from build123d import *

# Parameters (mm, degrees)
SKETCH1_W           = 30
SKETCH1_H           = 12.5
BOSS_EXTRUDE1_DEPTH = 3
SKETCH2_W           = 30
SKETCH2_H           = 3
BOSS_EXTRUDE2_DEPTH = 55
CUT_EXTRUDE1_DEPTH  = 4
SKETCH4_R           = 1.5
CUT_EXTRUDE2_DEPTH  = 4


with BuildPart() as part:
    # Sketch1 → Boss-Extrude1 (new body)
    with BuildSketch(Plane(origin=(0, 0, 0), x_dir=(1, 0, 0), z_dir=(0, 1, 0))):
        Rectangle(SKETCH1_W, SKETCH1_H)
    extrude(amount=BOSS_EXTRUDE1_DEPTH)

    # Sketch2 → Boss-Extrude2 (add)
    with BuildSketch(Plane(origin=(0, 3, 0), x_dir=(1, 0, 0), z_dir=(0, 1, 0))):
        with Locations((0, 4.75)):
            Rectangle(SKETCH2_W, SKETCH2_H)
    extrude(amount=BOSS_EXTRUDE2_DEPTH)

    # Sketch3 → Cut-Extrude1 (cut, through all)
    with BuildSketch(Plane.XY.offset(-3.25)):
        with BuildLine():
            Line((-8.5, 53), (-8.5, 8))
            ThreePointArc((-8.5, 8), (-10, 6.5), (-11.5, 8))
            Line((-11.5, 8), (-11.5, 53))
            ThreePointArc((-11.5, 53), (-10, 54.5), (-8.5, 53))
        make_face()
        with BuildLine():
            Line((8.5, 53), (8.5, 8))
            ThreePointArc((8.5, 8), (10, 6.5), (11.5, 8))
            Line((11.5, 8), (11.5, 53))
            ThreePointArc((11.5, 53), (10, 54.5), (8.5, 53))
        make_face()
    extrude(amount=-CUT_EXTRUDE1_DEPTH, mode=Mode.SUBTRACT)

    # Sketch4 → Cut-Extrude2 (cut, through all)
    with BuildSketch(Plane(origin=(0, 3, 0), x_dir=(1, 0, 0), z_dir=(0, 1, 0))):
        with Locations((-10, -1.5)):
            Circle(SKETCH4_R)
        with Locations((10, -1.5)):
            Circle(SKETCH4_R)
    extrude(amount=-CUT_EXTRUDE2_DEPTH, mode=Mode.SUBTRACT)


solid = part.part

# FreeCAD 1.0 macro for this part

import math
import FreeCAD as App
import Part
import Sketcher

doc = App.newDocument("Part")
body = doc.addObject("PartDesign::Body", "Body")

# Sketch on XZ plane
sketch1 = body.newObject("Sketcher::SketchObject", "Sketch")
sketch1.AttachmentSupport = (doc.getObject("XZ_Plane"), [""])
sketch1.MapMode = "FlatFace"
sketch1.addGeometry(Part.LineSegment(App.Vector(-15, -6, 0), App.Vector(-15, 6, 0)), False)
sketch1.addGeometry(Part.LineSegment(App.Vector(-15, 6, 0), App.Vector(15, 6, 0)), False)
sketch1.addGeometry(Part.LineSegment(App.Vector(15, 6, 0), App.Vector(15, -6, 0)), False)
sketch1.addGeometry(Part.LineSegment(App.Vector(15, -6, 0), App.Vector(-15, -6, 0)), False)
sketch1.addConstraint(Sketcher.Constraint("Coincident", 0, 2, 1, 1))
sketch1.addConstraint(Sketcher.Constraint("Coincident", 1, 2, 2, 1))
sketch1.addConstraint(Sketcher.Constraint("Coincident", 2, 2, 3, 1))
sketch1.addConstraint(Sketcher.Constraint("Coincident", 3, 2, 0, 1))
sketch1.addConstraint(Sketcher.Constraint("Vertical", 0))
sketch1.addConstraint(Sketcher.Constraint("Horizontal", 1))
sketch1.addConstraint(Sketcher.Constraint("Vertical", 2))
sketch1.addConstraint(Sketcher.Constraint("Horizontal", 3))
sketch1.addConstraint(Sketcher.Constraint("Symmetric", 0, 2, 2, 2, -1, 1))
sketch1.addConstraint(Sketcher.Constraint("DistanceX", 1, 1, 1, 2, 30.0))
sketch1.addConstraint(Sketcher.Constraint("DistanceY", 0, 1, 0, 2, 12.5))
pad1 = body.newObject("PartDesign::Pad", "Pad")
pad1.Profile = sketch1
pad1.Length = 3
pad1.Reversed = True

# Sketch on XZ plane
sketch2 = body.newObject("Sketcher::SketchObject", "Sketch001")
sketch2.AttachmentSupport = (doc.getObject("XZ_Plane"), [""])
sketch2.MapMode = "FlatFace"
sketch2.AttachmentOffset = App.Placement(App.Vector(0, 0, -3), App.Rotation())
sketch2.addGeometry(Part.LineSegment(App.Vector(-15, -6.2, 0), App.Vector(-15, -3.2, 0)), False)
sketch2.addGeometry(Part.LineSegment(App.Vector(-15, -3.2, 0), App.Vector(15, -3.2, 0)), False)
sketch2.addGeometry(Part.LineSegment(App.Vector(15, -3.2, 0), App.Vector(15, -6.2, 0)), False)
sketch2.addGeometry(Part.LineSegment(App.Vector(15, -6.2, 0), App.Vector(-15, -6.2, 0)), False)
sketch2.addConstraint(Sketcher.Constraint("Coincident", 0, 2, 1, 1))
sketch2.addConstraint(Sketcher.Constraint("Coincident", 1, 2, 2, 1))
sketch2.addConstraint(Sketcher.Constraint("Coincident", 2, 2, 3, 1))
sketch2.addConstraint(Sketcher.Constraint("Coincident", 3, 2, 0, 1))
sketch2.addConstraint(Sketcher.Constraint("Vertical", 0))
sketch2.addConstraint(Sketcher.Constraint("Horizontal", 1))
sketch2.addConstraint(Sketcher.Constraint("Vertical", 2))
sketch2.addConstraint(Sketcher.Constraint("Horizontal", 3))
sketch2.addConstraint(Sketcher.Constraint("DistanceX", 1, 1, 1, 2, 30.0))
sketch2.addConstraint(Sketcher.Constraint("DistanceY", 0, 1, 0, 2, 3.0))
sketch2.addConstraint(Sketcher.Constraint("DistanceX", 0, 2, -1, 1, 15.0))
sketch2.addConstraint(Sketcher.Constraint("DistanceY", 0, 2, -1, 1, 3.25))
pad2 = body.newObject("PartDesign::Pad", "Pad001")
pad2.Profile = sketch2
pad2.Length = 55
pad2.Reversed = True

# Sketch on XY plane
sketch3 = body.newObject("Sketcher::SketchObject", "Sketch002")
sketch3.AttachmentSupport = (doc.getObject("XY_Plane"), [""])
sketch3.MapMode = "FlatFace"
sketch3.AttachmentOffset = App.Placement(App.Vector(0, 0, -3.25), App.Rotation())
sketch3.addGeometry(Part.LineSegment(App.Vector(-8.5, 8, 0), App.Vector(-8.5, 53, 0)), False)
sketch3.addGeometry(Part.ArcOfCircle(Part.Circle(App.Vector(-10, 53, 0), App.Vector(0, 0, 1), 1.5), math.radians(0), math.radians(180)), False)
sketch3.addGeometry(Part.LineSegment(App.Vector(-11.5, 53, 0), App.Vector(-11.5, 8, 0)), False)
sketch3.addGeometry(Part.ArcOfCircle(Part.Circle(App.Vector(-10, 8, 0), App.Vector(0, 0, 1), 1.5), math.radians(180), math.radians(360)), False)
sketch3.addGeometry(Part.LineSegment(App.Vector(8.5, 53, 0), App.Vector(8.5, 8, 0)), False)
sketch3.addGeometry(Part.ArcOfCircle(Part.Circle(App.Vector(10, 8, 0), App.Vector(0, 0, 1), 1.5), math.radians(180), math.radians(360)), False)
sketch3.addGeometry(Part.LineSegment(App.Vector(11.5, 8, 0), App.Vector(11.5, 53, 0)), False)
sketch3.addGeometry(Part.ArcOfCircle(Part.Circle(App.Vector(10, 53, 0), App.Vector(0, 0, 1), 1.5), math.radians(0), math.radians(180)), False)
sketch3.addConstraint(Sketcher.Constraint("Tangent", 0, 2, 1, 1))
sketch3.addConstraint(Sketcher.Constraint("Tangent", 1, 2, 2, 1))
sketch3.addConstraint(Sketcher.Constraint("Tangent", 2, 2, 3, 1))
sketch3.addConstraint(Sketcher.Constraint("Tangent", 3, 2, 0, 1))
sketch3.addConstraint(Sketcher.Constraint("Tangent", 4, 2, 5, 1))
sketch3.addConstraint(Sketcher.Constraint("Tangent", 5, 2, 6, 1))
sketch3.addConstraint(Sketcher.Constraint("Tangent", 6, 2, 7, 1))
sketch3.addConstraint(Sketcher.Constraint("Tangent", 7, 2, 4, 1))
sketch3.addConstraint(Sketcher.Constraint("Vertical", 0))
sketch3.addConstraint(Sketcher.Constraint("Vertical", 2))
sketch3.addConstraint(Sketcher.Constraint("Vertical", 4))
sketch3.addConstraint(Sketcher.Constraint("Vertical", 6))
sketch3.addConstraint(Sketcher.Constraint("Equal", 3, 5))
sketch3.addConstraint(Sketcher.Constraint("Symmetric", 3, 3, 5, 3, -2))
sketch3.addConstraint(Sketcher.Constraint("Horizontal", 1, 3, 7, 3))
sketch3.addConstraint(Sketcher.Constraint("Radius", 1, 1.5))
sketch3.addConstraint(Sketcher.Constraint("DistanceY", 0, 1, 0, 2, 45.0))
sketch3.addConstraint(Sketcher.Constraint("DistanceX", 1, 3, -1, 1, 10.0))
sketch3.addConstraint(Sketcher.Constraint("DistanceY", -1, 1, 1, 3, 53.0))
pocket1 = body.newObject("PartDesign::Pocket", "Pocket")
pocket1.Profile = sketch3
pocket1.Type = "ThroughAll"

# Sketch on XZ plane
sketch4 = body.newObject("Sketcher::SketchObject", "Sketch003")
sketch4.AttachmentSupport = (doc.getObject("XZ_Plane"), [""])
sketch4.MapMode = "FlatFace"
sketch4.AttachmentOffset = App.Placement(App.Vector(0, 0, -3), App.Rotation())
sketch4.addGeometry(Part.Circle(App.Vector(-10, 1.5, 0), App.Vector(0, 0, 1), 1.5), False)
sketch4.addGeometry(Part.Circle(App.Vector(10, 1.5, 0), App.Vector(0, 0, 1), 1.5), False)
sketch4.addConstraint(Sketcher.Constraint("Equal", 0, 1))
sketch4.addConstraint(Sketcher.Constraint("Symmetric", 0, 3, 1, 3, -2))
sketch4.addConstraint(Sketcher.Constraint("Diameter", 0, 3.0))
sketch4.addConstraint(Sketcher.Constraint("DistanceX", 0, 3, -1, 1, 10.0))
sketch4.addConstraint(Sketcher.Constraint("DistanceY", -1, 1, 0, 3, 1.5))
pocket2 = body.newObject("PartDesign::Pocket", "Pocket001")
pocket2.Profile = sketch4
pocket2.Type = "ThroughAll"
pocket2.Reversed = True

doc.recompute()
